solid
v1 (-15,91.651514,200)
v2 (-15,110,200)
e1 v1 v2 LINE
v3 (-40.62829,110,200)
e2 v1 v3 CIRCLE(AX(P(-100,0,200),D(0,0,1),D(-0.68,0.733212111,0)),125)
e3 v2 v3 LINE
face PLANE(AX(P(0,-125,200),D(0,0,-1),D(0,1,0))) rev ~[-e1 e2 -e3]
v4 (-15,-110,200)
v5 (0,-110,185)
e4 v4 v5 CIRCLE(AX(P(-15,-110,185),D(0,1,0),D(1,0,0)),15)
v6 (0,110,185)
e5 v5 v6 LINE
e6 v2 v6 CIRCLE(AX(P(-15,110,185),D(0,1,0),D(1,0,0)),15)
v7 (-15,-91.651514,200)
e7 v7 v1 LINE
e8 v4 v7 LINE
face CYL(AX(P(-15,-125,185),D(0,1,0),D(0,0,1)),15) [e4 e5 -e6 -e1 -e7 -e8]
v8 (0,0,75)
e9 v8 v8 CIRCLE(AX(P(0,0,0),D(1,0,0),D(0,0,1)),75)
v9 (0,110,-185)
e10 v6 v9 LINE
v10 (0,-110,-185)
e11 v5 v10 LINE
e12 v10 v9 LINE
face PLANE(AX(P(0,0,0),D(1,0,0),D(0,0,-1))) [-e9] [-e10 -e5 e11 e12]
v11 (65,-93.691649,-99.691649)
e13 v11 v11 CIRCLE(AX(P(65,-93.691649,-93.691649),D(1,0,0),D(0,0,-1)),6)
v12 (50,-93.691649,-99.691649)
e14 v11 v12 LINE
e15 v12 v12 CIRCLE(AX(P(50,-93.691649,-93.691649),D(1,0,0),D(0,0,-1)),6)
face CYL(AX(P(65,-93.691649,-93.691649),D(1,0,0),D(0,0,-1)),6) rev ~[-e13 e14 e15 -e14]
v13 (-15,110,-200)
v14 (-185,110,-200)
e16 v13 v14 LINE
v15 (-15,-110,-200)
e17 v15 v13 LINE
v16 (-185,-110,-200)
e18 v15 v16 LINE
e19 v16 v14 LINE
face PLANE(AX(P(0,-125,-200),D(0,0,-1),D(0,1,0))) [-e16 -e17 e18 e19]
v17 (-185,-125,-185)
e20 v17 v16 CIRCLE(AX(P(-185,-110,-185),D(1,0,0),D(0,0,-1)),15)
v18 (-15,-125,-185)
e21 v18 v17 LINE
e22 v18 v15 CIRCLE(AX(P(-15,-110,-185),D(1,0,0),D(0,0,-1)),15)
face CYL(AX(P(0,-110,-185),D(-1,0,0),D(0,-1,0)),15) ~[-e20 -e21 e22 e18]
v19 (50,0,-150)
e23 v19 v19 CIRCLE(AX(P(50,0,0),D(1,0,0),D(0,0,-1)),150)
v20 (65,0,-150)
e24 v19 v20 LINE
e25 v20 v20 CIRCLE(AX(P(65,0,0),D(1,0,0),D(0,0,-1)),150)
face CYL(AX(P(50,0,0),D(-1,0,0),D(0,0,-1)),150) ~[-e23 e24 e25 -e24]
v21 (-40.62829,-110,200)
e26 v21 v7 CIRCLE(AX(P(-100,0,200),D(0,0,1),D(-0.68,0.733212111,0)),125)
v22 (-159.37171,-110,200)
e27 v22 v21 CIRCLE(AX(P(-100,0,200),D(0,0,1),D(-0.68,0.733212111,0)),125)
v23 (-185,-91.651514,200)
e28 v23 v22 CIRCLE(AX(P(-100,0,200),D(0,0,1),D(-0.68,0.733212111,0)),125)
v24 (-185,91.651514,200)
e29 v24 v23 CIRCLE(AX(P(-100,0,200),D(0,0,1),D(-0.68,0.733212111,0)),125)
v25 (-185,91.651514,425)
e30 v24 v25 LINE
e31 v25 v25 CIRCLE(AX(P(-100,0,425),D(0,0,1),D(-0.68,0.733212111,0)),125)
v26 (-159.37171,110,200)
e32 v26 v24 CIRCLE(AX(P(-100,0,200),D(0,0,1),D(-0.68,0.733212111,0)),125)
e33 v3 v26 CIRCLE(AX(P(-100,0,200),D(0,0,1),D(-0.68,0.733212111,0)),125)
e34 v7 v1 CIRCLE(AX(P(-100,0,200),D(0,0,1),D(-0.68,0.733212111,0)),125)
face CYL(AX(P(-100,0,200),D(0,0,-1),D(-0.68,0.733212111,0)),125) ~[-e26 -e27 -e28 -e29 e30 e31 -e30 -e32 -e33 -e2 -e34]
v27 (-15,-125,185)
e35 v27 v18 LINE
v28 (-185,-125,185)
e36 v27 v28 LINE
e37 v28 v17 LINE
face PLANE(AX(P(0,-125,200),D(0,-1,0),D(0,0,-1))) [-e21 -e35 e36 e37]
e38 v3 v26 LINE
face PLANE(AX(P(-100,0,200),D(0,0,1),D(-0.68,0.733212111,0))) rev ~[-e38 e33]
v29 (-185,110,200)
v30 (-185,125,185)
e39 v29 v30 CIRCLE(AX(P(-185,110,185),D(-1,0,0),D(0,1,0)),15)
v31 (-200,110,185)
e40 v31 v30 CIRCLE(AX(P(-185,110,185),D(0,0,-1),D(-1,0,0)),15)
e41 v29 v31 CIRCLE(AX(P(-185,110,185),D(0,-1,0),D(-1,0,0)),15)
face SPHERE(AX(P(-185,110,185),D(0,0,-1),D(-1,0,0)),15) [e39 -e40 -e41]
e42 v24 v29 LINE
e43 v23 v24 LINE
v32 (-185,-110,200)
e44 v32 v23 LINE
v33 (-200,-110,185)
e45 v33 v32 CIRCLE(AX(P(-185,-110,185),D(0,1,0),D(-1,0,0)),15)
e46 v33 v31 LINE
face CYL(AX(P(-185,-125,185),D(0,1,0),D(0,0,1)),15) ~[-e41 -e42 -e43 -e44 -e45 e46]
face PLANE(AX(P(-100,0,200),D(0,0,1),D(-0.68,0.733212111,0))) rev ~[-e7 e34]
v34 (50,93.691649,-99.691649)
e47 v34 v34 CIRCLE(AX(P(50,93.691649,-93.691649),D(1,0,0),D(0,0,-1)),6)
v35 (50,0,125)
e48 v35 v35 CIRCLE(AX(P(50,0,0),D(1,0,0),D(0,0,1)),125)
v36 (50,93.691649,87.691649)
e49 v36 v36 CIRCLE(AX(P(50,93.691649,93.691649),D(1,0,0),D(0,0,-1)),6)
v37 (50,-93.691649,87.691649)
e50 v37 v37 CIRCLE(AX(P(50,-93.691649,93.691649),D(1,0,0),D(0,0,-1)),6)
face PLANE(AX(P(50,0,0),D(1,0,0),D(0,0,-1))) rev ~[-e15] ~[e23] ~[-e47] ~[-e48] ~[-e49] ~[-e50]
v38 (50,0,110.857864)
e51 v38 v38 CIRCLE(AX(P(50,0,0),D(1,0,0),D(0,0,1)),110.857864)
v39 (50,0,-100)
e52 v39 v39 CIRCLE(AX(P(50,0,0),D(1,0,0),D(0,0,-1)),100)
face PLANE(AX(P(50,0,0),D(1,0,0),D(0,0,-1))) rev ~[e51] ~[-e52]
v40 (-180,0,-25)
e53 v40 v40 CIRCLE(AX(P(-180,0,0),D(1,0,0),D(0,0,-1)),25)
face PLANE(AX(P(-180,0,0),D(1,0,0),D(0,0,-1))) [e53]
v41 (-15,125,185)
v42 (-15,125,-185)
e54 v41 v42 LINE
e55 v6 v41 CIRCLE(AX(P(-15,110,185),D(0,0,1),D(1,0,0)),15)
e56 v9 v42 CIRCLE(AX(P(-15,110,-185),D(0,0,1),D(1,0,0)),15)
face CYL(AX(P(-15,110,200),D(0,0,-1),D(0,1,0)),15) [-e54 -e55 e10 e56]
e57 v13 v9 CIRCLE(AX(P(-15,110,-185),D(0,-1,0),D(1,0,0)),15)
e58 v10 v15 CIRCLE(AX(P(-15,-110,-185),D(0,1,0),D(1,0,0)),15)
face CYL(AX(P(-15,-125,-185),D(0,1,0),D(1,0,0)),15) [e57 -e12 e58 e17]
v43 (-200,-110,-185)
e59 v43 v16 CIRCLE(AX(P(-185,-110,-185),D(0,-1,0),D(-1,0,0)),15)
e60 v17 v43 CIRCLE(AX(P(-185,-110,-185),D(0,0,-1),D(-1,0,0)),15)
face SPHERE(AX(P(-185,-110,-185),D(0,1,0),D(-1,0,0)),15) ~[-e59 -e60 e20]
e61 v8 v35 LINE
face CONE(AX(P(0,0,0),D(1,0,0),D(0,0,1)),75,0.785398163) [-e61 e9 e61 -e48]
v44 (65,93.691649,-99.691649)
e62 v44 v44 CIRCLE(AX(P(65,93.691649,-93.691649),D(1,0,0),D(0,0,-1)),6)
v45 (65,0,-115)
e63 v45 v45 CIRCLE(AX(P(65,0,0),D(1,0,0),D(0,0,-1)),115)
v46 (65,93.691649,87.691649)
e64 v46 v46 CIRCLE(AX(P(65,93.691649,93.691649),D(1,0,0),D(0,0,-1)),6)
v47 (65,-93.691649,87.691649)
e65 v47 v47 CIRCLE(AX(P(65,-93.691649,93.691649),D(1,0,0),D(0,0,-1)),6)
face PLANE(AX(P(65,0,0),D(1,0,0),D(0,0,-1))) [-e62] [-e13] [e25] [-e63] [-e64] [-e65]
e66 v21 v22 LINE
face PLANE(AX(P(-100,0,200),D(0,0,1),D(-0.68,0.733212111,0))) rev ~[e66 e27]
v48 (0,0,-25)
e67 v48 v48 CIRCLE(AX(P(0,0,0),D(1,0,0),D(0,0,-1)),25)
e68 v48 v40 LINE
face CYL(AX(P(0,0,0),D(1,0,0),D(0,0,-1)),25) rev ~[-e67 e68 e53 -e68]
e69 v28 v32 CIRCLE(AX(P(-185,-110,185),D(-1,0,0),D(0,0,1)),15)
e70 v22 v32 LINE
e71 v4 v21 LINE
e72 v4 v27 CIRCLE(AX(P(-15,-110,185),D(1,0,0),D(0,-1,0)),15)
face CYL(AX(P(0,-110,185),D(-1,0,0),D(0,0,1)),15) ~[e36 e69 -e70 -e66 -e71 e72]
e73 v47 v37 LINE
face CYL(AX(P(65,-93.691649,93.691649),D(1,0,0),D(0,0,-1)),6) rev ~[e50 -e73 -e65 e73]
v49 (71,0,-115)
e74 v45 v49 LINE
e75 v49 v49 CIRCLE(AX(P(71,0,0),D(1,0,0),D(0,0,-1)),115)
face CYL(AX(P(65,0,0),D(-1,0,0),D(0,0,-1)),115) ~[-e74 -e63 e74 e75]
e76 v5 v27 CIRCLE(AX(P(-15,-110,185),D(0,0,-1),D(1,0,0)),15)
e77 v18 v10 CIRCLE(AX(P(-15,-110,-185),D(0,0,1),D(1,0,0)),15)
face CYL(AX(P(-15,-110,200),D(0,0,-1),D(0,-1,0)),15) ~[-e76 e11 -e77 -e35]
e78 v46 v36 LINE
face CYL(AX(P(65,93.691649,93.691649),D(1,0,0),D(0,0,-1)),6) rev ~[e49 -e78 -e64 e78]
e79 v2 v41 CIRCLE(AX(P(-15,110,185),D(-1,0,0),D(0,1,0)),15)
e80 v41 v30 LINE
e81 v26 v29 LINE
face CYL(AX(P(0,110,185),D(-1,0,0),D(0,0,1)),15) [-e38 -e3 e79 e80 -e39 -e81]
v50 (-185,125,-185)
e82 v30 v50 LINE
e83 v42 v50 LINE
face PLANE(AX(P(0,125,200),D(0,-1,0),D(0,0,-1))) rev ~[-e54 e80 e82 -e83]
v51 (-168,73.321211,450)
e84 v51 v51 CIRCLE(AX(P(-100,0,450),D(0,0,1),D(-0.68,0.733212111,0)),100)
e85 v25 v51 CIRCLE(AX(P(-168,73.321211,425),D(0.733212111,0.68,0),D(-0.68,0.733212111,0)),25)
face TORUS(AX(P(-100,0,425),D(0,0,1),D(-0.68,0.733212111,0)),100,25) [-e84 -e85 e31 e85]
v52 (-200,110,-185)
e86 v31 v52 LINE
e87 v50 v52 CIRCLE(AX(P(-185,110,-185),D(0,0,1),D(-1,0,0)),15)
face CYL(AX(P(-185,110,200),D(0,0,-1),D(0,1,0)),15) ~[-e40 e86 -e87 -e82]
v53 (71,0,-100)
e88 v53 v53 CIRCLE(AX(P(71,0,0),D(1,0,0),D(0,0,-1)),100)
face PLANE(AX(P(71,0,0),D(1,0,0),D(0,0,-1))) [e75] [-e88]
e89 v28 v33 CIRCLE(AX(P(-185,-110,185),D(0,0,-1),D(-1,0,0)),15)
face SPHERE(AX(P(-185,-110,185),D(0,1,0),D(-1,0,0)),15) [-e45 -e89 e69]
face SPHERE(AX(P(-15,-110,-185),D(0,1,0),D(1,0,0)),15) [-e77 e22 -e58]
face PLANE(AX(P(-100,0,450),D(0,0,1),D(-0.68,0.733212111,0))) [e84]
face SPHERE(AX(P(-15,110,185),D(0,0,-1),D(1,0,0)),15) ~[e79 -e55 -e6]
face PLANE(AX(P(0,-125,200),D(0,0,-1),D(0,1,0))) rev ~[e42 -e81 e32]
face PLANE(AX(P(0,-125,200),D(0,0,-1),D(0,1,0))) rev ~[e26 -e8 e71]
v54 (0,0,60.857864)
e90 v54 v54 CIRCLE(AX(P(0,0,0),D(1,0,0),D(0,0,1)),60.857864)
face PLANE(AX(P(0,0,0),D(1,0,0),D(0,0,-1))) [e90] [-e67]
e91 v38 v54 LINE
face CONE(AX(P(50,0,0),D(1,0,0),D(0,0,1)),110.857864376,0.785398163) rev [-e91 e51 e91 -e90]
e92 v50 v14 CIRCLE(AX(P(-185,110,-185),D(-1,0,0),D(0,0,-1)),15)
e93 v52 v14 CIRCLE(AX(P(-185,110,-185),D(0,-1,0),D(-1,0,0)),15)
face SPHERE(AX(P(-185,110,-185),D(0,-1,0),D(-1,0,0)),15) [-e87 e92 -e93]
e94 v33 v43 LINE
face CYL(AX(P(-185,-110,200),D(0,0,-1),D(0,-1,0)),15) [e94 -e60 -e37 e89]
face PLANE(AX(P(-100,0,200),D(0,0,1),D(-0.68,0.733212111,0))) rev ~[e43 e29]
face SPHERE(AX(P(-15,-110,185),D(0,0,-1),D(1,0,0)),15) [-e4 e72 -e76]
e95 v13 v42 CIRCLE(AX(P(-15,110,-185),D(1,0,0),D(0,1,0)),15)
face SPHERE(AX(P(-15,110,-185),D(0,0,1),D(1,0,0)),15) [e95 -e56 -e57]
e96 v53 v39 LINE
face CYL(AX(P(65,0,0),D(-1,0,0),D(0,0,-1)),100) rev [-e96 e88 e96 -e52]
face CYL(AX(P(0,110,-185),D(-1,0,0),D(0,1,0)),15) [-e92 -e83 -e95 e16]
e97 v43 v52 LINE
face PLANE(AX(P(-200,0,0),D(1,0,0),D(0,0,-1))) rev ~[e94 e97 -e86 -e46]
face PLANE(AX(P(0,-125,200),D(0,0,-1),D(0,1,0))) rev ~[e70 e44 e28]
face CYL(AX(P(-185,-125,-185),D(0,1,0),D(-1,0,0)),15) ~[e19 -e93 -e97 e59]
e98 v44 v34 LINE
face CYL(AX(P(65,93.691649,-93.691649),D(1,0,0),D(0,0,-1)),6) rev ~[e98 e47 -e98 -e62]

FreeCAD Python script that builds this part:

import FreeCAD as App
import Part
import Sketcher
Q = App.Units.Quantity


def edges_at(feature, points):
    """Names of the edges that pass closest to the given points."""
    edges = feature.Shape.Edges
    near = lambda p: min(range(len(edges)), key=lambda i: edges[i].distToShape(Part.Vertex(*p))[0])
    return sorted({f"Edge{near(p) + 1}" for p in points})

doc = App.newDocument("Part")
body = doc.addObject("PartDesign::Body", "Body")

# Sketch on YZ plane
sketch1 = body.newObject("Sketcher::SketchObject", "Sketch")
sketch1.AttachmentSupport = (doc.getObject("YZ_Plane"), [""])
sketch1.MapMode = "FlatFace"
sketch1.addGeometry([
    Part.LineSegment(App.Vector(125, 200, 0), App.Vector(-125, 200, 0)),
    Part.LineSegment(App.Vector(-125, 200, 0), App.Vector(-125, -200, 0)),
    Part.LineSegment(App.Vector(-125, -200, 0), App.Vector(125, -200, 0)),
    Part.LineSegment(App.Vector(125, -200, 0), App.Vector(125, 200, 0)),
], False)
sketch1.addConstraint([
    Sketcher.Constraint("Coincident", 0, 2, 1, 1),
    Sketcher.Constraint("Coincident", 1, 2, 2, 1),
    Sketcher.Constraint("Coincident", 2, 2, 3, 1),
    Sketcher.Constraint("Coincident", 3, 2, 0, 1),
    Sketcher.Constraint("Horizontal", 0),
    Sketcher.Constraint("Vertical", 1),
    Sketcher.Constraint("Horizontal", 2),
    Sketcher.Constraint("Vertical", 3),
    Sketcher.Constraint("Symmetric", 0, 2, 2, 2, -1, 1),
    Sketcher.Constraint("DistanceX", 0, 2, 0, 1, Q("250 mm")),
    Sketcher.Constraint("DistanceY", 1, 2, 1, 1, Q("400 mm")),
])
pad1 = body.newObject("PartDesign::Pad", "Pad")
pad1.Profile = sketch1
pad1.Length = 200
pad1.Reversed = True

# Sketch on YZ plane
sketch2 = body.newObject("Sketcher::SketchObject", "Sketch001")
sketch2.AttachmentSupport = (doc.getObject("YZ_Plane"), [""])
sketch2.MapMode = "FlatFace"
sketch2.addGeometry(Part.Circle(App.Vector(0, 0, 0), App.Vector(0, 0, 1), 25), False)
sketch2.addConstraint([
    Sketcher.Constraint("Coincident", 0, 3, -1, 1),
    Sketcher.Constraint("Diameter", 0, Q("50 mm")),
])
pocket1 = body.newObject("PartDesign::Pocket", "Pocket")
pocket1.Profile = sketch2
pocket1.Length = 180
doc.recompute()

fillet = body.newObject("PartDesign::Fillet", "Fillet")
fillet.Base = (pocket1, edges_at(pocket1, [
    (-200, 0, -200),
    (-200, 125, 0),
    (-200, 0, 200),
    (0, 125, 0),
    (0, 0, -200),
    (0, -125, 0),
    (0, 0, 200),
    (-200, -125, 0),
    (-100, 125, 200),
    (-100, 125, -200),
    (-100, -125, -200),
    (-100, -125, 200),
]))
fillet.Radius = 15

# Sketch on XY plane
sketch3 = body.newObject("Sketcher::SketchObject", "Sketch002")
sketch3.AttachmentSupport = (doc.getObject("XY_Plane"), [""])
sketch3.MapMode = "FlatFace"
sketch3.AttachmentOffset = App.Placement(App.Vector(0, 0, 200), App.Rotation())
sketch3.addGeometry(Part.Circle(App.Vector(-100, 0, 0), App.Vector(0, 0, 1), 125), False)
sketch3.addConstraint([
    Sketcher.Constraint("PointOnObject", 0, 3, -1),
    Sketcher.Constraint("Diameter", 0, Q("250 mm")),
    Sketcher.Constraint("DistanceX", 0, 3, -1, 1, Q("100 mm")),
])
pad2 = body.newObject("PartDesign::Pad", "Pad001")
pad2.Profile = sketch3
pad2.Length = 250
doc.recompute()

fillet2 = body.newObject("PartDesign::Fillet", "Fillet001")
fillet2.Base = (pad2, edges_at(pad2, [(-15, -91.652, 450)]))
fillet2.Radius = 25

# Sketch on XY plane
sketch4 = body.newObject("Sketcher::SketchObject", "Sketch003")
sketch4.AttachmentSupport = (doc.getObject("XY_Plane"), [""])
sketch4.MapMode = "FlatFace"
sketch4.addGeometry([
    Part.LineSegment(App.Vector(50, 125, 0), App.Vector(0, 75, 0)),
    Part.LineSegment(App.Vector(0, 75, 0), App.Vector(0, 60.857864, 0)),
    Part.LineSegment(App.Vector(0, 60.857864, 0), App.Vector(50, 110.857864, 0)),
    Part.LineSegment(App.Vector(50, 110.857864, 0), App.Vector(50, 125, 0)),
], False)
sketch4.addConstraint([
    Sketcher.Constraint("Coincident", 0, 2, 1, 1),
    Sketcher.Constraint("Coincident", 1, 2, 2, 1),
    Sketcher.Constraint("Coincident", 2, 2, 3, 1),
    Sketcher.Constraint("Coincident", 3, 2, 0, 1),
    Sketcher.Constraint("Vertical", 1),
    Sketcher.Constraint("Vertical", 3),
    Sketcher.Constraint("PointOnObject", 0, 2, -2),
    Sketcher.Constraint("Parallel", 0, 2),
    Sketcher.Constraint("Angle", 0, Q("-135 deg")),
    Sketcher.Constraint("DistanceY", -1, 1, 0, 2, Q("75 mm")),
    Sketcher.Constraint("DistanceX", -1, 1, 2, 2, Q("50 mm")),
    Sketcher.Constraint("DistanceY", 1, 2, 1, 1, Q("14.142136 mm")),
])
revolution = body.newObject("PartDesign::Revolution", "Revolution")
revolution.Profile = sketch4
revolution.ReferenceAxis = (sketch4, ["H_Axis"])
revolution.Angle = 360

# Sketch on YZ plane
sketch5 = body.newObject("Sketcher::SketchObject", "Sketch004")
sketch5.AttachmentSupport = (doc.getObject("YZ_Plane"), [""])
sketch5.MapMode = "FlatFace"
sketch5.AttachmentOffset = App.Placement(App.Vector(0, 0, 50), App.Rotation())
sketch5.addGeometry([
    Part.Circle(App.Vector(0, 0, 0), App.Vector(0, 0, 1), 150),
    Part.Circle(App.Vector(0, 0, 0), App.Vector(0, 0, 1), 100),
], False)
sketch5.addConstraint([
    Sketcher.Constraint("Coincident", 0, 3, -1, 1),
    Sketcher.Constraint("Coincident", 1, 3, -1, 1),
    Sketcher.Constraint("Diameter", 0, Q("300 mm")),
    Sketcher.Constraint("Diameter", 1, Q("200 mm")),
])
pad3 = body.newObject("PartDesign::Pad", "Pad002")
pad3.Profile = sketch5
pad3.Length = 15

# Sketch on YZ plane
sketch6 = body.newObject("Sketcher::SketchObject", "Sketch005")
sketch6.AttachmentSupport = (doc.getObject("YZ_Plane"), [""])
sketch6.MapMode = "FlatFace"
sketch6.AttachmentOffset = App.Placement(App.Vector(0, 0, 65), App.Rotation())
sketch6.addGeometry([
    Part.Circle(App.Vector(0, 0, 0), App.Vector(0, 0, 1), 115),
    Part.Circle(App.Vector(0, 0, 0), App.Vector(0, 0, 1), 100),
], False)
sketch6.addConstraint([
    Sketcher.Constraint("Coincident", 0, 3, -1, 1),
    Sketcher.Constraint("Coincident", 1, 3, -1, 1),
    Sketcher.Constraint("Diameter", 0, Q("230 mm")),
    Sketcher.Constraint("Diameter", 1, Q("200 mm")),
])
pad4 = body.newObject("PartDesign::Pad", "Pad003")
pad4.Profile = sketch6
pad4.Length = 6

# Sketch on YZ plane
sketch7 = body.newObject("Sketcher::SketchObject", "Sketch006")
sketch7.AttachmentSupport = (doc.getObject("YZ_Plane"), [""])
sketch7.MapMode = "FlatFace"
sketch7.AttachmentOffset = App.Placement(App.Vector(0, 0, 65), App.Rotation())
sketch7.addGeometry([
    Part.Circle(App.Vector(93.691649, -93.691649, 0), App.Vector(0, 0, 1), 6),
    Part.Circle(App.Vector(-93.691649, 93.691649, 0), App.Vector(0, 0, 1), 6),
    Part.Circle(App.Vector(93.691649, 93.691649, 0), App.Vector(0, 0, 1), 6),
    Part.Circle(App.Vector(-93.691649, -93.691649, 0), App.Vector(0, 0, 1), 6),
], False)
sketch7.addConstraint([
    Sketcher.Constraint("Equal", 0, 1),
    Sketcher.Constraint("Equal", 1, 2),
    Sketcher.Constraint("Equal", 2, 3),
    Sketcher.Constraint("Symmetric", 0, 3, 1, 3, -1, 1),
    Sketcher.Constraint("Symmetric", 2, 3, 3, 3, -1, 1),
    Sketcher.Constraint("Symmetric", 1, 3, 2, 3, -2),
    Sketcher.Constraint("Diameter", 0, Q("12 mm")),
    Sketcher.Constraint("DistanceX", -1, 1, 0, 3, Q("93.691649 mm")),
    Sketcher.Constraint("DistanceY", 0, 3, -1, 1, Q("93.691649 mm")),
])
pocket2 = body.newObject("PartDesign::Pocket", "Pocket001")
pocket2.Profile = sketch7
pocket2.Length = 15

doc.recompute()
